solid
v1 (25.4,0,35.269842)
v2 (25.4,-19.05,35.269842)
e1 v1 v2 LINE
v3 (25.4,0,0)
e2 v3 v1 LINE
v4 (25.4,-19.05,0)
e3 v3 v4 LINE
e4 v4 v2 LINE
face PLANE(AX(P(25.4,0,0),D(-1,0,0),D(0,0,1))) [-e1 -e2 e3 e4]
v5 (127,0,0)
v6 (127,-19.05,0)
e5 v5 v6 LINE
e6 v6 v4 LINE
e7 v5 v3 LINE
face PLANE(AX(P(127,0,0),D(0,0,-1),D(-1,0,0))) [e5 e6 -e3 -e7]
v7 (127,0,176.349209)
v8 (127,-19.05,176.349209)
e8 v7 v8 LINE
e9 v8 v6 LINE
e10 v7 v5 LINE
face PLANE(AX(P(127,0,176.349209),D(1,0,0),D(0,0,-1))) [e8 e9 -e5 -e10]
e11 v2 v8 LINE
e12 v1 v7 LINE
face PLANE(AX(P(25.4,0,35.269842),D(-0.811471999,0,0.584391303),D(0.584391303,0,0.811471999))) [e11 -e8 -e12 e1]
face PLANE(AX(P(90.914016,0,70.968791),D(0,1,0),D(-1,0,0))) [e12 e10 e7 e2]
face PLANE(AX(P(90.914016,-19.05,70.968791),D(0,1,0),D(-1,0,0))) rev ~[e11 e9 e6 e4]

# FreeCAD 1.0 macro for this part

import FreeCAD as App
import Part
import Sketcher
Q = App.Units.Quantity

doc = App.newDocument("Part")
params = doc.addObject("Spreadsheet::Sheet", "Params")
for row, (alias, value) in enumerate([
    ("sketch1_width", "4 in"),
    ("pad1_length", "0.75 in"),
], start=1):
    params.set(f"A{row}", alias)
    params.set(f"B{row}", "=" + value)
    params.setAlias(f"B{row}", alias)

body = doc.addObject("PartDesign::Body", "Body")

sketch1 = doc.addObject("Sketcher::SketchObject", "Sketch")
body.addObject(sketch1)
sketch1.AttachmentSupport = (doc.XZ_Plane, [""])
sketch1.MapMode = "FlatFace"
sketch1.addGeometry([
    Part.LineSegment(App.Vector(127, 0, 0), App.Vector(127, 176, 0)),
    Part.LineSegment(App.Vector(127, 176, 0), App.Vector(25, 35, 0)),
    Part.LineSegment(App.Vector(25, 35, 0), App.Vector(25, 0, 0)),
    Part.LineSegment(App.Vector(25, 0, 0), App.Vector(127, 0, 0)),
], False)
sketch1.addConstraint([
    Sketcher.Constraint("Coincident", 0, 2, 1, 1),
    Sketcher.Constraint("Coincident", 1, 2, 2, 1),
    Sketcher.Constraint("Coincident", 2, 2, 3, 1),
    Sketcher.Constraint("Coincident", 3, 2, 0, 1),
    Sketcher.Constraint("Vertical", 0),
    Sketcher.Constraint("Vertical", 2),
    Sketcher.Constraint("Horizontal", 3),
    Sketcher.Constraint("PointOnObject", 2, 2, -1),
    Sketcher.Constraint("DistanceX", 3, 1, 3, 2, Q("4 in")),
    Sketcher.Constraint("DistanceX", -1, 1, 0, 2, Q("5 in")),
    Sketcher.Constraint("Angle", 1, Q("-125.76 deg")),
    Sketcher.Constraint("DistanceY", 0, 1, 0, 2, 176.349209),
])
sketch1.setExpression("Constraints[8]", "Params.sketch1_width")
pad1 = doc.addObject("PartDesign::Pad", "Pad")
body.addObject(pad1)
pad1.Profile = sketch1
pad1.setExpression("Length", "Params.pad1_length")

doc.recompute()
